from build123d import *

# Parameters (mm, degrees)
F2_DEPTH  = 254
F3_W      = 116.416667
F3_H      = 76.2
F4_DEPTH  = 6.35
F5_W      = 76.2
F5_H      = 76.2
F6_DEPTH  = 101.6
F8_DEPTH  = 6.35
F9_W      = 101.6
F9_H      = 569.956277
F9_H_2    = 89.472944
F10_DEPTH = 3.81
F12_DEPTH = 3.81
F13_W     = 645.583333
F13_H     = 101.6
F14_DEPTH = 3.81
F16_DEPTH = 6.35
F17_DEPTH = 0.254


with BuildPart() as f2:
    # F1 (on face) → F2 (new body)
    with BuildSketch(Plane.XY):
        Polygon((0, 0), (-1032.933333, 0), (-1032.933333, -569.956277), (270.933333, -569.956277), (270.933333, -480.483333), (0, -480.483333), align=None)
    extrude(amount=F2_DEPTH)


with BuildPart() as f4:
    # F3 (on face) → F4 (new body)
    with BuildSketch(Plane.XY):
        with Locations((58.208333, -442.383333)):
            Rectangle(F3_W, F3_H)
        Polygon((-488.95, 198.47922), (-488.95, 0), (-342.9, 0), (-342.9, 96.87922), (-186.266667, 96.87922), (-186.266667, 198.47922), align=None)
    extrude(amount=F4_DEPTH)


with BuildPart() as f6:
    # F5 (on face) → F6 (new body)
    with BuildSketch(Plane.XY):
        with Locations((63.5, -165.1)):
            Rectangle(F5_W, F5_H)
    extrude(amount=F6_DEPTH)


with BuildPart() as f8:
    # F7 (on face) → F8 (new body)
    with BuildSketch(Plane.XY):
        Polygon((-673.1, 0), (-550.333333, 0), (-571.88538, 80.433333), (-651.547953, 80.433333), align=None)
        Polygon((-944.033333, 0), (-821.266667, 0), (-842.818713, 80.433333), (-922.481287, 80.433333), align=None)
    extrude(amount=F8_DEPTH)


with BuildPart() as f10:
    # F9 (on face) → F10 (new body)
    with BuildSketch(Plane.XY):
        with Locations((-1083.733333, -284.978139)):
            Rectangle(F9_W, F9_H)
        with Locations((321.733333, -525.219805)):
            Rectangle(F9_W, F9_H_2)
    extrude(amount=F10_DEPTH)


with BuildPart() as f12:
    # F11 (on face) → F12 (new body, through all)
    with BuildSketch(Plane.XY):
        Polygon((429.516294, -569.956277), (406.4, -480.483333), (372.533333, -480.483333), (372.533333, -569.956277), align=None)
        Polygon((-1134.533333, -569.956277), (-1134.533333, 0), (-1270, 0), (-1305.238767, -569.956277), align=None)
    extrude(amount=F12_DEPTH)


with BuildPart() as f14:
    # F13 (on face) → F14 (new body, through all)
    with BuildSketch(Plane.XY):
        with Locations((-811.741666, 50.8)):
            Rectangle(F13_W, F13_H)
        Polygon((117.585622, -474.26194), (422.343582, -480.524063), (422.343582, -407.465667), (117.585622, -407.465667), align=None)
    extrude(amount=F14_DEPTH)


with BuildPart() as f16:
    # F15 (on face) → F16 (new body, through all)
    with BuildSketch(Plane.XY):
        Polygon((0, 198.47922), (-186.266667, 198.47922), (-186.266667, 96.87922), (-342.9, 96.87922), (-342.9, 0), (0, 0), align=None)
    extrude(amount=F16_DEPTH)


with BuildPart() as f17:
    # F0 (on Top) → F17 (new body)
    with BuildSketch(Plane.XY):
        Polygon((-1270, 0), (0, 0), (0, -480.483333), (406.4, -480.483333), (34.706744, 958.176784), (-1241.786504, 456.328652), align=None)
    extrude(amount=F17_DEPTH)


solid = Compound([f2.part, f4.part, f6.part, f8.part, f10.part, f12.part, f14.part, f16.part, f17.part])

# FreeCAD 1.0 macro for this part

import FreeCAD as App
import Part
import Sketcher
from FreeCAD import Vector
Q = App.Units.Quantity

doc = App.newDocument("Part")
body = doc.addObject("PartDesign::Body", "Body")

# Sketch on XY plane
sketch1 = body.newObject("Sketcher::SketchObject", "Sketch")
sketch1.AttachmentSupport = (doc.getObject("XY_Plane"), [""])
sketch1.MapMode = "FlatFace"
sketch1.addGeometry(Part.LineSegment(Vector(0, 0, 0), Vector(-1033, 0, 0)), False)
sketch1.addGeometry(Part.LineSegment(Vector(-1033, 0, 0), Vector(-1033, -570, 0)), False)
sketch1.addGeometry(Part.LineSegment(Vector(-1033, -570, 0), Vector(271, -570, 0)), False)
sketch1.addGeometry(Part.LineSegment(Vector(271, -570, 0), Vector(271, -480, 0)), False)
sketch1.addGeometry(Part.LineSegment(Vector(271, -480, 0), Vector(0, -480, 0)), False)
sketch1.addGeometry(Part.LineSegment(Vector(0, -480, 0), Vector(0, 0, 0)), False)
sketch1.addConstraint(Sketcher.Constraint("Coincident", 0, 2, 1, 1))
sketch1.addConstraint(Sketcher.Constraint("Coincident", 1, 2, 2, 1))
sketch1.addConstraint(Sketcher.Constraint("Coincident", 2, 2, 3, 1))
sketch1.addConstraint(Sketcher.Constraint("Coincident", 3, 2, 4, 1))
sketch1.addConstraint(Sketcher.Constraint("Coincident", 4, 2, 5, 1))
sketch1.addConstraint(Sketcher.Constraint("Coincident", 5, 2, 0, 1))
sketch1.addConstraint(Sketcher.Constraint("Horizontal", 0))
sketch1.addConstraint(Sketcher.Constraint("Vertical", 1))
sketch1.addConstraint(Sketcher.Constraint("Horizontal", 2))
sketch1.addConstraint(Sketcher.Constraint("Vertical", 3))
sketch1.addConstraint(Sketcher.Constraint("Horizontal", 4))
sketch1.addConstraint(Sketcher.Constraint("Vertical", 5))
sketch1.addConstraint(Sketcher.Constraint("Coincident", 5, 2, -1, 1))
sketch1.addConstraint(Sketcher.Constraint("DistanceX", 0, 2, 0, 1, 1032.933333))
sketch1.addConstraint(Sketcher.Constraint("DistanceX", 2, 1, 2, 2, 1303.866666))
sketch1.addConstraint(Sketcher.Constraint("DistanceY", 1, 2, 1, 1, 569.956277))
sketch1.addConstraint(Sketcher.Constraint("DistanceY", 3, 1, 3, 2, 89.472944))
pad1 = body.newObject("PartDesign::Pad", "Pad")
pad1.Profile = sketch1
pad1.Length = Q("10 in")
body2 = doc.addObject("PartDesign::Body", "Body001")
body2.AllowCompound = True

# Sketch on XY plane
sketch2 = body2.newObject("Sketcher::SketchObject", "Sketch001")
sketch2.AttachmentSupport = (doc.getObject("XY_Plane001"), [""])
sketch2.MapMode = "FlatFace"
sketch2.addGeometry(Part.LineSegment(Vector(0, -404, 0), Vector(0, -480, 0)), False)
sketch2.addGeometry(Part.LineSegment(Vector(0, -480, 0), Vector(116, -480, 0)), False)
sketch2.addGeometry(Part.LineSegment(Vector(116, -480, 0), Vector(116, -404, 0)), False)
sketch2.addGeometry(Part.LineSegment(Vector(116, -404, 0), Vector(0, -404, 0)), False)
sketch2.addGeometry(Part.LineSegment(Vector(-489, 198, 0), Vector(-489, 0, 0)), False)
sketch2.addGeometry(Part.LineSegment(Vector(-489, 0, 0), Vector(-343, 0, 0)), False)
sketch2.addGeometry(Part.LineSegment(Vector(-343, 0, 0), Vector(-343, 97, 0)), False)
sketch2.addGeometry(Part.LineSegment(Vector(-343, 97, 0), Vector(-186, 97, 0)), False)
sketch2.addGeometry(Part.LineSegment(Vector(-186, 97, 0), Vector(-186, 198, 0)), False)
sketch2.addGeometry(Part.LineSegment(Vector(-186, 198, 0), Vector(-489, 198, 0)), False)
sketch2.addConstraint(Sketcher.Constraint("Coincident", 0, 2, 1, 1))
sketch2.addConstraint(Sketcher.Constraint("Coincident", 1, 2, 2, 1))
sketch2.addConstraint(Sketcher.Constraint("Coincident", 2, 2, 3, 1))
sketch2.addConstraint(Sketcher.Constraint("Coincident", 3, 2, 0, 1))
sketch2.addConstraint(Sketcher.Constraint("Coincident", 4, 2, 5, 1))
sketch2.addConstraint(Sketcher.Constraint("Coincident", 5, 2, 6, 1))
sketch2.addConstraint(Sketcher.Constraint("Coincident", 6, 2, 7, 1))
sketch2.addConstraint(Sketcher.Constraint("Coincident", 7, 2, 8, 1))
sketch2.addConstraint(Sketcher.Constraint("Coincident", 8, 2, 9, 1))
sketch2.addConstraint(Sketcher.Constraint("Coincident", 9, 2, 4, 1))
sketch2.addConstraint(Sketcher.Constraint("Vertical", 0))
sketch2.addConstraint(Sketcher.Constraint("Horizontal", 1))
sketch2.addConstraint(Sketcher.Constraint("Vertical", 2))
sketch2.addConstraint(Sketcher.Constraint("Horizontal", 3))
sketch2.addConstraint(Sketcher.Constraint("Vertical", 4))
sketch2.addConstraint(Sketcher.Constraint("Horizontal", 5))
sketch2.addConstraint(Sketcher.Constraint("Vertical", 6))
sketch2.addConstraint(Sketcher.Constraint("Horizontal", 7))
sketch2.addConstraint(Sketcher.Constraint("Vertical", 8))
sketch2.addConstraint(Sketcher.Constraint("Horizontal", 9))
sketch2.addConstraint(Sketcher.Constraint("PointOnObject", 0, 2, -2))
sketch2.addConstraint(Sketcher.Constraint("PointOnObject", 4, 2, -1))
sketch2.addConstraint(Sketcher.Constraint("DistanceY", 0, 2, 0, 1, Q("3 in")))
sketch2.addConstraint(Sketcher.Constraint("DistanceY", 8, 1, 8, 2, Q("4 in")))
sketch2.addConstraint(Sketcher.Constraint("DistanceX", 5, 1, 5, 2, Q("5.75 in")))
sketch2.addConstraint(Sketcher.Constraint("DistanceX", 5, 2, -1, 1, Q("13.5 in")))
sketch2.addConstraint(Sketcher.Constraint("DistanceY", 4, 2, 4, 1, 198.47922))
sketch2.addConstraint(Sketcher.Constraint("DistanceX", 1, 1, 1, 2, 116.416667))
sketch2.addConstraint(Sketcher.Constraint("DistanceX", 7, 1, 7, 2, 156.633333))
sketch2.addConstraint(Sketcher.Constraint("DistanceY", 0, 2, -1, 1, 480.483333))
pad2 = body2.newObject("PartDesign::Pad", "Pad001")
pad2.Profile = sketch2
pad2.Length = Q("0.25 in")
body3 = doc.addObject("PartDesign::Body", "Body002")

# Sketch on XY plane
sketch3 = body3.newObject("Sketcher::SketchObject", "Sketch002")
sketch3.AttachmentSupport = (doc.getObject("XY_Plane002"), [""])
sketch3.MapMode = "FlatFace"
sketch3.addGeometry(Part.LineSegment(Vector(25, -127, 0), Vector(25, -203, 0)), False)
sketch3.addGeometry(Part.LineSegment(Vector(25, -203, 0), Vector(102, -203, 0)), False)
sketch3.addGeometry(Part.LineSegment(Vector(102, -203, 0), Vector(102, -127, 0)), False)
sketch3.addGeometry(Part.LineSegment(Vector(102, -127, 0), Vector(25, -127, 0)), False)
sketch3.addConstraint(Sketcher.Constraint("Coincident", 0, 2, 1, 1))
sketch3.addConstraint(Sketcher.Constraint("Coincident", 1, 2, 2, 1))
sketch3.addConstraint(Sketcher.Constraint("Coincident", 2, 2, 3, 1))
sketch3.addConstraint(Sketcher.Constraint("Coincident", 3, 2, 0, 1))
sketch3.addConstraint(Sketcher.Constraint("Vertical", 0))
sketch3.addConstraint(Sketcher.Constraint("Horizontal", 1))
sketch3.addConstraint(Sketcher.Constraint("Vertical", 2))
sketch3.addConstraint(Sketcher.Constraint("Horizontal", 3))
sketch3.addConstraint(Sketcher.Constraint("Equal", 3, 0))
sketch3.addConstraint(Sketcher.Constraint("DistanceX", 1, 1, 1, 2, Q("3 in")))
sketch3.addConstraint(Sketcher.Constraint("DistanceX", -1, 1, 0, 2, Q("1 in")))
sketch3.addConstraint(Sketcher.Constraint("DistanceY", 0, 2, -1, 1, Q("8 in")))
pad3 = body3.newObject("PartDesign::Pad", "Pad002")
pad3.Profile = sketch3
pad3.Length = Q("4 in")
body4 = doc.addObject("PartDesign::Body", "Body003")
body4.AllowCompound = True

# Sketch on XY plane
sketch4 = body4.newObject("Sketcher::SketchObject", "Sketch003")
sketch4.AttachmentSupport = (doc.getObject("XY_Plane003"), [""])
sketch4.MapMode = "FlatFace"
sketch4.addGeometry(Part.LineSegment(Vector(-673, 0, 0), Vector(-550, 0, 0)), False)
sketch4.addGeometry(Part.LineSegment(Vector(-550, 0, 0), Vector(-572, 80, 0)), False)
sketch4.addGeometry(Part.LineSegment(Vector(-572, 80, 0), Vector(-652, 80, 0)), False)
sketch4.addGeometry(Part.LineSegment(Vector(-652, 80, 0), Vector(-673, 0, 0)), False)
sketch4.addGeometry(Part.LineSegment(Vector(-944, 0, 0), Vector(-821, 0, 0)), False)
sketch4.addGeometry(Part.LineSegment(Vector(-821, 0, 0), Vector(-843, 80, 0)), False)
sketch4.addGeometry(Part.LineSegment(Vector(-843, 80, 0), Vector(-922, 80, 0)), False)
sketch4.addGeometry(Part.LineSegment(Vector(-922, 80, 0), Vector(-944, 0, 0)), False)
sketch4.addConstraint(Sketcher.Constraint("Coincident", 0, 2, 1, 1))
sketch4.addConstraint(Sketcher.Constraint("Coincident", 1, 2, 2, 1))
sketch4.addConstraint(Sketcher.Constraint("Coincident", 2, 2, 3, 1))
sketch4.addConstraint(Sketcher.Constraint("Coincident", 3, 2, 0, 1))
sketch4.addConstraint(Sketcher.Constraint("Coincident", 4, 2, 5, 1))
sketch4.addConstraint(Sketcher.Constraint("Coincident", 5, 2, 6, 1))
sketch4.addConstraint(Sketcher.Constraint("Coincident", 6, 2, 7, 1))
sketch4.addConstraint(Sketcher.Constraint("Coincident", 7, 2, 4, 1))
sketch4.addConstraint(Sketcher.Constraint("Horizontal", 0))
sketch4.addConstraint(Sketcher.Constraint("Horizontal", 2))
sketch4.addConstraint(Sketcher.Constraint("Horizontal", 4))
sketch4.addConstraint(Sketcher.Constraint("Horizontal", 6))
sketch4.addConstraint(Sketcher.Constraint("PointOnObject", 0, 2, -1))
sketch4.addConstraint(Sketcher.Constraint("PointOnObject", 4, 2, -1))
sketch4.addConstraint(Sketcher.Constraint("Parallel", 1, 5))
sketch4.addConstraint(Sketcher.Constraint("Parallel", 3, 7))
sketch4.addConstraint(Sketcher.Constraint("Horizontal", 2, 2, 5, 2))
sketch4.addConstraint(Sketcher.Constraint("Equal", 0, 4))
sketch4.addConstraint(Sketcher.Constraint("Equal", 1, 3))
sketch4.addConstraint(Sketcher.Constraint("Angle", 1, Q("105 deg")))
sketch4.addConstraint(Sketcher.Constraint("DistanceX", 3, 2, -1, 1, Q("26.5 in")))
sketch4.addConstraint(Sketcher.Constraint("DistanceX", 0, 1, 0, 2, 122.766667))
sketch4.addConstraint(Sketcher.Constraint("DistanceX", 2, 2, 2, 1, 79.662573))
sketch4.addConstraint(Sketcher.Constraint("DistanceX", 5, 2, 2, 2, 191.27076))
pad4 = body4.newObject("PartDesign::Pad", "Pad003")
pad4.Profile = sketch4
pad4.Length = Q("0.25 in")
body5 = doc.addObject("PartDesign::Body", "Body004")
body5.AllowCompound = True

# Sketch on XY plane
sketch5 = body5.newObject("Sketcher::SketchObject", "Sketch004")
sketch5.AttachmentSupport = (doc.getObject("XY_Plane004"), [""])
sketch5.MapMode = "FlatFace"
sketch5.addGeometry(Part.LineSegment(Vector(-1135, 0, 0), Vector(-1135, -570, 0)), False)
sketch5.addGeometry(Part.LineSegment(Vector(-1135, -570, 0), Vector(-1033, -570, 0)), False)
sketch5.addGeometry(Part.LineSegment(Vector(-1033, -570, 0), Vector(-1033, 0, 0)), False)
sketch5.addGeometry(Part.LineSegment(Vector(-1033, 0, 0), Vector(-1135, 0, 0)), False)
sketch5.addGeometry(Part.LineSegment(Vector(271, -480, 0), Vector(271, -570, 0)), False)
sketch5.addGeometry(Part.LineSegment(Vector(271, -570, 0), Vector(373, -570, 0)), False)
sketch5.addGeometry(Part.LineSegment(Vector(373, -570, 0), Vector(373, -480, 0)), False)
sketch5.addGeometry(Part.LineSegment(Vector(373, -480, 0), Vector(271, -480, 0)), False)
sketch5.addConstraint(Sketcher.Constraint("Coincident", 0, 2, 1, 1))
sketch5.addConstraint(Sketcher.Constraint("Coincident", 1, 2, 2, 1))
sketch5.addConstraint(Sketcher.Constraint("Coincident", 2, 2, 3, 1))
sketch5.addConstraint(Sketcher.Constraint("Coincident", 3, 2, 0, 1))
sketch5.addConstraint(Sketcher.Constraint("Coincident", 4, 2, 5, 1))
sketch5.addConstraint(Sketcher.Constraint("Coincident", 5, 2, 6, 1))
sketch5.addConstraint(Sketcher.Constraint("Coincident", 6, 2, 7, 1))
sketch5.addConstraint(Sketcher.Constraint("Coincident", 7, 2, 4, 1))
sketch5.addConstraint(Sketcher.Constraint("Vertical", 0))
sketch5.addConstraint(Sketcher.Constraint("Horizontal", 1))
sketch5.addConstraint(Sketcher.Constraint("Vertical", 2))
sketch5.addConstraint(Sketcher.Constraint("Horizontal", 3))
sketch5.addConstraint(Sketcher.Constraint("Vertical", 4))
sketch5.addConstraint(Sketcher.Constraint("Horizontal", 5))
sketch5.addConstraint(Sketcher.Constraint("Vertical", 6))
sketch5.addConstraint(Sketcher.Constraint("Horizontal", 7))
sketch5.addConstraint(Sketcher.Constraint("PointOnObject", 2, 2, -1))
sketch5.addConstraint(Sketcher.Constraint("Horizontal", 1, 2, 4, 2))
sketch5.addConstraint(Sketcher.Constraint("Equal", 3, 5))
sketch5.addConstraint(Sketcher.Constraint("DistanceX", 1, 1, 1, 2, Q("4 in")))
sketch5.addConstraint(Sketcher.Constraint("DistanceY", 0, 2, 0, 1, 569.956277))
sketch5.addConstraint(Sketcher.Constraint("DistanceY", 4, 2, 4, 1, 89.472944))
sketch5.addConstraint(Sketcher.Constraint("DistanceX", 0, 2, -1, 1, 1134.533333))
sketch5.addConstraint(Sketcher.Constraint("DistanceX", -1, 1, 4, 2, 270.933333))
pad5 = body5.newObject("PartDesign::Pad", "Pad004")
pad5.Profile = sketch5
pad5.Length = Q("0.15 in")
body6 = doc.addObject("PartDesign::Body", "Body005")
body6.AllowCompound = True

# Sketch on XY plane
sketch6 = body6.newObject("Sketcher::SketchObject", "Sketch005")
sketch6.AttachmentSupport = (doc.getObject("XY_Plane005"), [""])
sketch6.MapMode = "FlatFace"
sketch6.addGeometry(Part.LineSegment(Vector(430, -570, 0), Vector(406, -480, 0)), False)
sketch6.addGeometry(Part.LineSegment(Vector(406, -480, 0), Vector(373, -480, 0)), False)
sketch6.addGeometry(Part.LineSegment(Vector(373, -480, 0), Vector(373, -570, 0)), False)
sketch6.addGeometry(Part.LineSegment(Vector(373, -570, 0), Vector(430, -570, 0)), False)
sketch6.addGeometry(Part.LineSegment(Vector(-1135, -570, 0), Vector(-1135, 0, 0)), False)
sketch6.addGeometry(Part.LineSegment(Vector(-1135, 0, 0), Vector(-1270, 0, 0)), False)
sketch6.addGeometry(Part.LineSegment(Vector(-1270, 0, 0), Vector(-1305, -570, 0)), False)
sketch6.addGeometry(Part.LineSegment(Vector(-1305, -570, 0), Vector(-1135, -570, 0)), False)
sketch6.addConstraint(Sketcher.Constraint("Coincident", 0, 2, 1, 1))
sketch6.addConstraint(Sketcher.Constraint("Coincident", 1, 2, 2, 1))
sketch6.addConstraint(Sketcher.Constraint("Coincident", 2, 2, 3, 1))
sketch6.addConstraint(Sketcher.Constraint("Coincident", 3, 2, 0, 1))
sketch6.addConstraint(Sketcher.Constraint("Coincident", 4, 2, 5, 1))
sketch6.addConstraint(Sketcher.Constraint("Coincident", 5, 2, 6, 1))
sketch6.addConstraint(Sketcher.Constraint("Coincident", 6, 2, 7, 1))
sketch6.addConstraint(Sketcher.Constraint("Coincident", 7, 2, 4, 1))
sketch6.addConstraint(Sketcher.Constraint("Horizontal", 1))
sketch6.addConstraint(Sketcher.Constraint("Vertical", 2))
sketch6.addConstraint(Sketcher.Constraint("Horizontal", 3))
sketch6.addConstraint(Sketcher.Constraint("Vertical", 4))
sketch6.addConstraint(Sketcher.Constraint("Horizontal", 5))
sketch6.addConstraint(Sketcher.Constraint("Horizontal", 7))
sketch6.addConstraint(Sketcher.Constraint("PointOnObject", 4, 2, -1))
sketch6.addConstraint(Sketcher.Constraint("Horizontal", 3, 2, 6, 2))
sketch6.addConstraint(Sketcher.Constraint("DistanceX", -1, 1, 0, 2, Q("16 in")))
sketch6.addConstraint(Sketcher.Constraint("DistanceX", 5, 2, -1, 1, Q("50 in")))
sketch6.addConstraint(Sketcher.Constraint("DistanceX", 3, 1, 3, 2, 56.982961))
sketch6.addConstraint(Sketcher.Constraint("DistanceX", 6, 2, 2, 2, 1677.7721))
sketch6.addConstraint(Sketcher.Constraint("Distance", 0, 92.41088))
sketch6.addConstraint(Sketcher.Constraint("DistanceX", 1, 2, 1, 1, 33.866667))
sketch6.addConstraint(Sketcher.Constraint("DistanceX", 5, 2, 5, 1, 135.466667))
sketch6.addConstraint(Sketcher.Constraint("DistanceY", 4, 1, 4, 2, 569.956277))
pad6 = body6.newObject("PartDesign::Pad", "Pad005")
pad6.Profile = sketch6
pad6.Length = Q("0.15 in")
body7 = doc.addObject("PartDesign::Body", "Body006")
body7.AllowCompound = True

# Sketch on XY plane
sketch7 = body7.newObject("Sketcher::SketchObject", "Sketch006")
sketch7.AttachmentSupport = (doc.getObject("XY_Plane006"), [""])
sketch7.MapMode = "FlatFace"
sketch7.addGeometry(Part.LineSegment(Vector(-1135, 102, 0), Vector(-1135, 0, 0)), False)
sketch7.addGeometry(Part.LineSegment(Vector(-1135, 0, 0), Vector(-489, 0, 0)), False)
sketch7.addGeometry(Part.LineSegment(Vector(-489, 0, 0), Vector(-489, 102, 0)), False)
sketch7.addGeometry(Part.LineSegment(Vector(-489, 102, 0), Vector(-1135, 102, 0)), False)
sketch7.addGeometry(Part.LineSegment(Vector(118, -474, 0), Vector(422, -481, 0)), False)
sketch7.addGeometry(Part.LineSegment(Vector(422, -481, 0), Vector(422, -407, 0)), False)
sketch7.addGeometry(Part.LineSegment(Vector(422, -407, 0), Vector(118, -407, 0)), False)
sketch7.addGeometry(Part.LineSegment(Vector(118, -407, 0), Vector(118, -474, 0)), False)
sketch7.addConstraint(Sketcher.Constraint("Coincident", 0, 2, 1, 1))
sketch7.addConstraint(Sketcher.Constraint("Coincident", 1, 2, 2, 1))
sketch7.addConstraint(Sketcher.Constraint("Coincident", 2, 2, 3, 1))
sketch7.addConstraint(Sketcher.Constraint("Coincident", 3, 2, 0, 1))
sketch7.addConstraint(Sketcher.Constraint("Coincident", 4, 2, 5, 1))
sketch7.addConstraint(Sketcher.Constraint("Coincident", 5, 2, 6, 1))
sketch7.addConstraint(Sketcher.Constraint("Coincident", 6, 2, 7, 1))
sketch7.addConstraint(Sketcher.Constraint("Coincident", 7, 2, 4, 1))
sketch7.addConstraint(Sketcher.Constraint("Vertical", 0))
sketch7.addConstraint(Sketcher.Constraint("Horizontal", 1))
sketch7.addConstraint(Sketcher.Constraint("Vertical", 2))
sketch7.addConstraint(Sketcher.Constraint("Horizontal", 3))
sketch7.addConstraint(Sketcher.Constraint("Vertical", 5))
sketch7.addConstraint(Sketcher.Constraint("Horizontal", 6))
sketch7.addConstraint(Sketcher.Constraint("Vertical", 7))
sketch7.addConstraint(Sketcher.Constraint("PointOnObject", 0, 2, -1))
sketch7.addConstraint(Sketcher.Constraint("DistanceY", 0, 2, 0, 1, Q("4 in")))
sketch7.addConstraint(Sketcher.Constraint("DistanceX", 1, 2, -1, 1, Q("19.25 in")))
sketch7.addConstraint(Sketcher.Constraint("DistanceX", -1, 1, 4, 2, Q("16.6277001 in")))
sketch7.addConstraint(Sketcher.Constraint("DistanceX", 6, 2, 6, 1, 304.75796))
sketch7.addConstraint(Sketcher.Constraint("Distance", 4, 304.82229))
sketch7.addConstraint(Sketcher.Constraint("DistanceX", 1, 1, 1, 2, 645.583333))
sketch7.addConstraint(Sketcher.Constraint("DistanceY", 5, 1, 5, 2, 73.058396))
sketch7.addConstraint(Sketcher.Constraint("DistanceY", 7, 2, -1, 1, 474.26194))
pad7 = body7.newObject("PartDesign::Pad", "Pad006")
pad7.Profile = sketch7
pad7.Length = Q("0.15 in")
body8 = doc.addObject("PartDesign::Body", "Body007")

# Sketch on XY plane
sketch8 = body8.newObject("Sketcher::SketchObject", "Sketch007")
sketch8.AttachmentSupport = (doc.getObject("XY_Plane007"), [""])
sketch8.MapMode = "FlatFace"
sketch8.addGeometry(Part.LineSegment(Vector(0, 198, 0), Vector(-186, 198, 0)), False)
sketch8.addGeometry(Part.LineSegment(Vector(-186, 198, 0), Vector(-186, 97, 0)), False)
sketch8.addGeometry(Part.LineSegment(Vector(-186, 97, 0), Vector(-343, 97, 0)), False)
sketch8.addGeometry(Part.LineSegment(Vector(-343, 97, 0), Vector(-343, 0, 0)), False)
sketch8.addGeometry(Part.LineSegment(Vector(-343, 0, 0), Vector(0, 0, 0)), False)
sketch8.addGeometry(Part.LineSegment(Vector(0, 0, 0), Vector(0, 198, 0)), False)
sketch8.addConstraint(Sketcher.Constraint("Coincident", 0, 2, 1, 1))
sketch8.addConstraint(Sketcher.Constraint("Coincident", 1, 2, 2, 1))
sketch8.addConstraint(Sketcher.Constraint("Coincident", 2, 2, 3, 1))
sketch8.addConstraint(Sketcher.Constraint("Coincident", 3, 2, 4, 1))
sketch8.addConstraint(Sketcher.Constraint("Coincident", 4, 2, 5, 1))
sketch8.addConstraint(Sketcher.Constraint("Coincident", 5, 2, 0, 1))
sketch8.addConstraint(Sketcher.Constraint("Horizontal", 0))
sketch8.addConstraint(Sketcher.Constraint("Vertical", 1))
sketch8.addConstraint(Sketcher.Constraint("Horizontal", 2))
sketch8.addConstraint(Sketcher.Constraint("Vertical", 3))
sketch8.addConstraint(Sketcher.Constraint("Horizontal", 4))
sketch8.addConstraint(Sketcher.Constraint("Vertical", 5))
sketch8.addConstraint(Sketcher.Constraint("Coincident", 4, 2, -1, 1))
sketch8.addConstraint(Sketcher.Constraint("DistanceY", 1, 2, 1, 1, Q("4 in")))
sketch8.addConstraint(Sketcher.Constraint("DistanceX", 4, 1, 4, 2, Q("13.5 in")))
sketch8.addConstraint(Sketcher.Constraint("DistanceY", 3, 2, 3, 1, 96.87922))
sketch8.addConstraint(Sketcher.Constraint("DistanceX", 0, 2, 0, 1, 186.266667))
pad8 = body8.newObject("PartDesign::Pad", "Pad007")
pad8.Profile = sketch8
pad8.Length = Q("0.25 in")
body9 = doc.addObject("PartDesign::Body", "Body008")

# Sketch on XY plane
sketch9 = body9.newObject("Sketcher::SketchObject", "Sketch008")
sketch9.AttachmentSupport = (doc.getObject("XY_Plane008"), [""])
sketch9.MapMode = "FlatFace"
sketch9.addGeometry(Part.LineSegment(Vector(-1270, 0, 0), Vector(0, 0, 0)), False)
sketch9.addGeometry(Part.LineSegment(Vector(0, 0, 0), Vector(0, -480, 0)), False)
sketch9.addGeometry(Part.LineSegment(Vector(0, -480, 0), Vector(406, -480, 0)), False)
sketch9.addGeometry(Part.LineSegment(Vector(406, -480, 0), Vector(35, 958, 0)), False)
sketch9.addGeometry(Part.LineSegment(Vector(35, 958, 0), Vector(-1242, 456, 0)), False)
sketch9.addGeometry(Part.LineSegment(Vector(-1242, 456, 0), Vector(-1270, 0, 0)), False)
sketch9.addConstraint(Sketcher.Constraint("Coincident", 0, 2, 1, 1))
sketch9.addConstraint(Sketcher.Constraint("Coincident", 1, 2, 2, 1))
sketch9.addConstraint(Sketcher.Constraint("Coincident", 2, 2, 3, 1))
sketch9.addConstraint(Sketcher.Constraint("Coincident", 3, 2, 4, 1))
sketch9.addConstraint(Sketcher.Constraint("Coincident", 4, 2, 5, 1))
sketch9.addConstraint(Sketcher.Constraint("Coincident", 5, 2, 0, 1))
sketch9.addConstraint(Sketcher.Constraint("Horizontal", 0))
sketch9.addConstraint(Sketcher.Constraint("Vertical", 1))
sketch9.addConstraint(Sketcher.Constraint("Horizontal", 2))
sketch9.addConstraint(Sketcher.Constraint("Coincident", 0, 2, -1, 1))
sketch9.addConstraint(Sketcher.Constraint("DistanceX", 0, 1, 0, 2, Q("50 in")))
sketch9.addConstraint(Sketcher.Constraint("DistanceX", 2, 1, 2, 2, Q("16 in")))
sketch9.addConstraint(Sketcher.Constraint("Distance", 4, Q("54 in")))
sketch9.addConstraint(Sketcher.Constraint("Distance", 5, Q("18 in")))
sketch9.addConstraint(Sketcher.Constraint("Distance", 3, Q("58.5 in")))
sketch9.addConstraint(Sketcher.Constraint("DistanceY", 1, 2, 1, 1, 480.483333))
sketch9.addConstraint(Sketcher.Constraint("DistanceY", -1, 1, 4, 2, 456.328652))
pad9 = body9.newObject("PartDesign::Pad", "Pad008")
pad9.Profile = sketch9
pad9.Length = Q("0.01 in")

doc.recompute()
